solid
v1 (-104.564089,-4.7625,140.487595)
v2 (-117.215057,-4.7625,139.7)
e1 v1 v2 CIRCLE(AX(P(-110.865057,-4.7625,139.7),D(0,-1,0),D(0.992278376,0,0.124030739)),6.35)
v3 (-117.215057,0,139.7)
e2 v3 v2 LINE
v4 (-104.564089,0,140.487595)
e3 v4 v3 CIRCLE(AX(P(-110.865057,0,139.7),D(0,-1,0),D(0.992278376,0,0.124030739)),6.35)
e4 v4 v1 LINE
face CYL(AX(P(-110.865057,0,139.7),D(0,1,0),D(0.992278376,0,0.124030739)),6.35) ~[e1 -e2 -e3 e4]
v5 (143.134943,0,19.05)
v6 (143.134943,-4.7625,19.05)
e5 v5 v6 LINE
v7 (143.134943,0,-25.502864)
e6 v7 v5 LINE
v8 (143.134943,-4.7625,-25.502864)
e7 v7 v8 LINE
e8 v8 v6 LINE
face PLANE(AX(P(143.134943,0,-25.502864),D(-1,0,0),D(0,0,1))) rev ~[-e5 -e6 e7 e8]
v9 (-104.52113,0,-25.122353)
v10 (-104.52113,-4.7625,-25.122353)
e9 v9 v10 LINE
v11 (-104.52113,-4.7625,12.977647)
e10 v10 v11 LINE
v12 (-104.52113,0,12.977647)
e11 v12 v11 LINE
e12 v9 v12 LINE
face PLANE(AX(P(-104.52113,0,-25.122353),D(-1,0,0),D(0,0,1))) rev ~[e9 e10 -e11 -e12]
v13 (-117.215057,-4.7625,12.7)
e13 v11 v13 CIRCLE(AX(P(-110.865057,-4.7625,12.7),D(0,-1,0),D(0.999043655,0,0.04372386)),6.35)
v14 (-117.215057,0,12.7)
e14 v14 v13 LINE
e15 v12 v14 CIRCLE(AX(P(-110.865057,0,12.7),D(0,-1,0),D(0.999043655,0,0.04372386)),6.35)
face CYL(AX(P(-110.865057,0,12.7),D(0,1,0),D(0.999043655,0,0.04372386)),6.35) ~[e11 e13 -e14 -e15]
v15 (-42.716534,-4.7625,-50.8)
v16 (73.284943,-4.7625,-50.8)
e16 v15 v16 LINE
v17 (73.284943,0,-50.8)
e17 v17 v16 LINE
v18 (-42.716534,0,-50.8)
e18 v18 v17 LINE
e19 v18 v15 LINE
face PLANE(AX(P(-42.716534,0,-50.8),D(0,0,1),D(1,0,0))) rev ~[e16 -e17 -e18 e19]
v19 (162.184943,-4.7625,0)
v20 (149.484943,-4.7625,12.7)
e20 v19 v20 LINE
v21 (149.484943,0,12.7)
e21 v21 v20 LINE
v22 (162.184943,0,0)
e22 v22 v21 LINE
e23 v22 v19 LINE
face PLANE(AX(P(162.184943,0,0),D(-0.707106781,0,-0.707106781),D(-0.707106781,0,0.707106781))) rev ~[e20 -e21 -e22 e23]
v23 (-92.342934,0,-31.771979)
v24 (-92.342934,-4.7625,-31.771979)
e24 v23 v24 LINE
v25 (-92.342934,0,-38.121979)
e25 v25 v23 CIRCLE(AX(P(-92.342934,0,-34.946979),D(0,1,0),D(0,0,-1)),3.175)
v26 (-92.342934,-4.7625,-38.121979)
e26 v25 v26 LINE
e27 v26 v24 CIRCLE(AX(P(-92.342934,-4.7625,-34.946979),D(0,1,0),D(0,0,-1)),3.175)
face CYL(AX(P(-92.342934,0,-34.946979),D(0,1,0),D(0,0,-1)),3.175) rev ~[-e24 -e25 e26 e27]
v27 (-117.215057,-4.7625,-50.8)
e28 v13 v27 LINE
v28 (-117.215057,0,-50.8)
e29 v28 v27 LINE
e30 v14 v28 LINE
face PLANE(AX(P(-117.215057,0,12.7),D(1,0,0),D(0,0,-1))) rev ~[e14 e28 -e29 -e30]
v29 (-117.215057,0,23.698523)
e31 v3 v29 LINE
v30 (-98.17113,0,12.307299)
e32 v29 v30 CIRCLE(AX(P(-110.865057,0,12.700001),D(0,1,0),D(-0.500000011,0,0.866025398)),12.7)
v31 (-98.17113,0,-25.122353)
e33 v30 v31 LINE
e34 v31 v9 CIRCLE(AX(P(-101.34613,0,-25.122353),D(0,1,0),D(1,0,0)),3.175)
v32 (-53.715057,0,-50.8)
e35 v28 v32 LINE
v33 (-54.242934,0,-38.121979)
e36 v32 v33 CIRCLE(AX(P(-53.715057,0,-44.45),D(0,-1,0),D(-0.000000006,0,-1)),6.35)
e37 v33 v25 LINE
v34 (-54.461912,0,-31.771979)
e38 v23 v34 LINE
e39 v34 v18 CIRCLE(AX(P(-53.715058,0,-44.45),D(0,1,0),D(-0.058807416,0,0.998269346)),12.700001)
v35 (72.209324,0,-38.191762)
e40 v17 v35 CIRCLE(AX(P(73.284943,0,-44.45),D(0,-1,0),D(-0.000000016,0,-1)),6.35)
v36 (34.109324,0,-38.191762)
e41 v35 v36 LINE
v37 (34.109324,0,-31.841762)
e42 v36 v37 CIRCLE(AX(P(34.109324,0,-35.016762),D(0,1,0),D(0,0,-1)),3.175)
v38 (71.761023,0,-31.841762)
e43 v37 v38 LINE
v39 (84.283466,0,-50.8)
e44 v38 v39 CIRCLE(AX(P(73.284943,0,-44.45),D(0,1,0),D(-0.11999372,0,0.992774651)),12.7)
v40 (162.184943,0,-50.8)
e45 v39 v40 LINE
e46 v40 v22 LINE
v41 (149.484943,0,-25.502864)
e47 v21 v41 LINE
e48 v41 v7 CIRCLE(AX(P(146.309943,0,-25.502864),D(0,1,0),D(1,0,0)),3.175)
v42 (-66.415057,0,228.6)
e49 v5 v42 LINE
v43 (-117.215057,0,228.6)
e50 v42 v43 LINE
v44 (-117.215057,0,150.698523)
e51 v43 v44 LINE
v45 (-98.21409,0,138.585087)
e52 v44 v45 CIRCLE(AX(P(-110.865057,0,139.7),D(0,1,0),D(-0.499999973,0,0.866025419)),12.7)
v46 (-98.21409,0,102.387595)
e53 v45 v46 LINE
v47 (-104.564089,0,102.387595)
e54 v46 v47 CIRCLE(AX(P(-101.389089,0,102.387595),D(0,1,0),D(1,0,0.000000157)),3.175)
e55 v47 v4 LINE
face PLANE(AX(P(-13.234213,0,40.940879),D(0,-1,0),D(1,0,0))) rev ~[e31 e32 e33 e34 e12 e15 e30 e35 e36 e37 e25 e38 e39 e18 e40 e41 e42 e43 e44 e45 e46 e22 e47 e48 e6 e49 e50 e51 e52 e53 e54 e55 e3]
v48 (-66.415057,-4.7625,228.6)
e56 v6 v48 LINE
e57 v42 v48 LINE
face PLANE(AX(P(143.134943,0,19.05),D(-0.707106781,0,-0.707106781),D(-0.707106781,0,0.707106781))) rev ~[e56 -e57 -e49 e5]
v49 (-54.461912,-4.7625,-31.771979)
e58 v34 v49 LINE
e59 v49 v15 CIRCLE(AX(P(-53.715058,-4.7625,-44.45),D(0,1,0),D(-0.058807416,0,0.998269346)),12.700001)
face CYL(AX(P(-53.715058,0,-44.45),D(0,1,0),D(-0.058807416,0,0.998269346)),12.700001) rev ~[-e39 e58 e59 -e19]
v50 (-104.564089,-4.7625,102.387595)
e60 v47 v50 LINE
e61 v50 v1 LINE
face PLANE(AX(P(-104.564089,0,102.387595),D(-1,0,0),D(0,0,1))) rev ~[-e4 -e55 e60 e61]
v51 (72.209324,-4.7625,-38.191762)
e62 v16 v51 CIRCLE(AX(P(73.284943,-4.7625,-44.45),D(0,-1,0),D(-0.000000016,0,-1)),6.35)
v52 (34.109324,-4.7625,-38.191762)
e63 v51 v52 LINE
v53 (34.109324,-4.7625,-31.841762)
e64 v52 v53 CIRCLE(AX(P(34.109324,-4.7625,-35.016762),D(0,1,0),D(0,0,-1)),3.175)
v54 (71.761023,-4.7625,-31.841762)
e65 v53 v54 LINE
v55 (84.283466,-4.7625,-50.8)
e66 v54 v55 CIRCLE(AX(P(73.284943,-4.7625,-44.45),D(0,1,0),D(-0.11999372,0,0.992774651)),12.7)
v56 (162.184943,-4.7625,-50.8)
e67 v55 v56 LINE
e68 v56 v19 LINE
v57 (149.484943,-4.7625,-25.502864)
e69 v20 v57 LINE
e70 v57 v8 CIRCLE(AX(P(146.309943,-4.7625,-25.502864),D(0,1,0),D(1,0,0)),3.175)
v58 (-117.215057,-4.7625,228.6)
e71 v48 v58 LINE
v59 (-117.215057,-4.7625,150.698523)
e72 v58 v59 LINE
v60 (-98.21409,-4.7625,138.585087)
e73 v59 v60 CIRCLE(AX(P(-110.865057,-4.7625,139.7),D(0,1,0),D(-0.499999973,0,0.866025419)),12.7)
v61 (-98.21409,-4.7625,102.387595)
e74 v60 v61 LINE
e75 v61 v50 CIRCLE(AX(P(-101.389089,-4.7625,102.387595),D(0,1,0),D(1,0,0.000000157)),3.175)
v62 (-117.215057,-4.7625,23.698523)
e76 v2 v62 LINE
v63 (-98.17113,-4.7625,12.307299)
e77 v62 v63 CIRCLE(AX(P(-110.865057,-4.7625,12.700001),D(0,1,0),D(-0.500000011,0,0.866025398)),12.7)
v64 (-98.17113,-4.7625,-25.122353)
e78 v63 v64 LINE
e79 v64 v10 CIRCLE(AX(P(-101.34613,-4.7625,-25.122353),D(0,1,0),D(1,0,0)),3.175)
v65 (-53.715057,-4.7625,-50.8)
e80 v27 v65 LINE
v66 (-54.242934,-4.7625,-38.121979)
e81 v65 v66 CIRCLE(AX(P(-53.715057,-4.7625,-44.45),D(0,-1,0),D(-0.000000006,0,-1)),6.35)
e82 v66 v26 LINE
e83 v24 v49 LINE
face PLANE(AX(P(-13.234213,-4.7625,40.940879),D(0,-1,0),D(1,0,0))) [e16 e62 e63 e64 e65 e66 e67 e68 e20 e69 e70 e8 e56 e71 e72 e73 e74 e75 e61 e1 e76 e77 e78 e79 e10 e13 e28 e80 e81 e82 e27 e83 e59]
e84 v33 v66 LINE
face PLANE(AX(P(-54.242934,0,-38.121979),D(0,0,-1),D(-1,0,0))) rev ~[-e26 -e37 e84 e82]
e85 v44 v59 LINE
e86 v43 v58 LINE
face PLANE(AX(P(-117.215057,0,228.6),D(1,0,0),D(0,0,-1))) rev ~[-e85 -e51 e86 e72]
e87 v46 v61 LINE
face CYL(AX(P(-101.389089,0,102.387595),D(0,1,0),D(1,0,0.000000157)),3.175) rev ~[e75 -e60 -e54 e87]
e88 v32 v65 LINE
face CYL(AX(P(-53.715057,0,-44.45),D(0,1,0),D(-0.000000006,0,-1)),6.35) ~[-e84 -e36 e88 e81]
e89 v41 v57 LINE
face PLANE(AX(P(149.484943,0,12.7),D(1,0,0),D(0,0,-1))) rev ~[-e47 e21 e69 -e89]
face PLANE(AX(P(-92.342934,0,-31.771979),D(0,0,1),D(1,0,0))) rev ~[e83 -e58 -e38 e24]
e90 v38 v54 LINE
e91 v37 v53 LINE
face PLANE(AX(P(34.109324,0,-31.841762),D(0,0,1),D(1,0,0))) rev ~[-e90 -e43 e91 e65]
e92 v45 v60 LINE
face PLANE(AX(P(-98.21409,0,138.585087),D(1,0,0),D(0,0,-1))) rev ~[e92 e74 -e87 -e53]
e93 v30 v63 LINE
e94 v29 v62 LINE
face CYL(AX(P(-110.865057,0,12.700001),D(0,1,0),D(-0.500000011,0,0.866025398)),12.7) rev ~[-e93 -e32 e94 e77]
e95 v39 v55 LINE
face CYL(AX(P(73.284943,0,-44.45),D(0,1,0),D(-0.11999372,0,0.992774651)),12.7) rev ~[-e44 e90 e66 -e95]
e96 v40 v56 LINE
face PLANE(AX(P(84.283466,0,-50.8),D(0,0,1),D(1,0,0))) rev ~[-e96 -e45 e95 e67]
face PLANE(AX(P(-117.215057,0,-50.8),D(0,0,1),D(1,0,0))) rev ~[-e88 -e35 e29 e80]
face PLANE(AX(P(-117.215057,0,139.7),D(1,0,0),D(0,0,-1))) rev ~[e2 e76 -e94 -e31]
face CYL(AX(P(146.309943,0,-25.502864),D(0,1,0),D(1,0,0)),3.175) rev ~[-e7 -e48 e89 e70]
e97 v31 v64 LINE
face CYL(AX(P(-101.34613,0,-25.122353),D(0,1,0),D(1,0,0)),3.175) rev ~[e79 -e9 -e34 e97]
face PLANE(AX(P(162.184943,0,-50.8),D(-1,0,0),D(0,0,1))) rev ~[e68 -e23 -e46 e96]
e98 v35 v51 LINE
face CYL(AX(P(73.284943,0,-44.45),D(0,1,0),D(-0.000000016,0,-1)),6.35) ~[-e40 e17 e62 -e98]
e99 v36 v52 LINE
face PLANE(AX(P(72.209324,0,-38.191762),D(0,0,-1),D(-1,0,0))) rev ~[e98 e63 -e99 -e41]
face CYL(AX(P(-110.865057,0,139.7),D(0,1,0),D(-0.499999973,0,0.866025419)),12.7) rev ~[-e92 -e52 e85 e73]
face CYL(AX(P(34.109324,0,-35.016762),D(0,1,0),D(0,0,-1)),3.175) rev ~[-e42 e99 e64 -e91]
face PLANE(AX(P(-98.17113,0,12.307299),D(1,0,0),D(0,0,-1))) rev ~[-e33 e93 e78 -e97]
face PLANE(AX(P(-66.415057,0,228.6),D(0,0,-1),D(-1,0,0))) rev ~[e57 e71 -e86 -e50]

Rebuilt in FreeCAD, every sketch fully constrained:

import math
import FreeCAD as App
import Part
import Sketcher
from FreeCAD import Vector
Q = App.Units.Quantity

doc = App.newDocument("Part")
body = doc.addObject("PartDesign::Body", "Body")

sketch1 = doc.addObject("Sketcher::SketchObject", "Sketch")
body.addObject(sketch1)
sketch1.AttachmentSupport = (doc.XZ_Plane, [""])
sketch1.MapMode = "FlatFace"
sketch1.addGeometry([
    Part.LineSegment(Vector(-66.4, 228.6, 0), Vector(-117.2, 228.6, 0)),
    Part.LineSegment(Vector(-117.2, 228.6, 0), Vector(-117.2, 150.7, 0)),
    Part.ArcOfCircle(Part.Circle(Vector(-110.9, 139.7, 0), Vector(0, 0, 1), 12.7), math.radians(-5), math.radians(120)),
    Part.LineSegment(Vector(-98.2, 138.6, 0), Vector(-98.2, 102.4, 0)),
    Part.ArcOfCircle(Part.Circle(Vector(-101.4, 102.4, 0), Vector(0, 0, 1), 3.2), math.radians(180), math.radians(360)),
    Part.LineSegment(Vector(-104.6, 102.4, 0), Vector(-104.6, 140.5, 0)),
    Part.ArcOfCircle(Part.Circle(Vector(-110.9, 139.7, 0), Vector(0, 0, 1), 6.4), math.radians(7), math.radians(180)),
    Part.LineSegment(Vector(-117.2, 139.7, 0), Vector(-117.2, 23.7, 0)),
    Part.ArcOfCircle(Part.Circle(Vector(-110.9, 12.7, 0), Vector(0, 0, 1), 12.7), math.radians(-2), math.radians(120)),
    Part.LineSegment(Vector(-98.2, 12.3, 0), Vector(-98.2, -25.1, 0)),
    Part.ArcOfCircle(Part.Circle(Vector(-101.3, -25.1, 0), Vector(0, 0, 1), 3.2), math.radians(180), math.radians(360)),
    Part.LineSegment(Vector(-104.5, -25.1, 0), Vector(-104.5, 13, 0)),
    Part.ArcOfCircle(Part.Circle(Vector(-110.9, 12.7, 0), Vector(0, 0, 1), 6.3), math.radians(3), math.radians(180)),
    Part.LineSegment(Vector(-117.2, 12.7, 0), Vector(-117.2, -50.8, 0)),
    Part.LineSegment(Vector(-117.2, -50.8, 0), Vector(-53.7, -50.8, 0)),
    Part.ArcOfCircle(Part.Circle(Vector(-53.7, -44.4, 0), Vector(0, 0, 1), 6.4), math.radians(-90), math.radians(95)),
    Part.LineSegment(Vector(-54.2, -38.1, 0), Vector(-92.3, -38.1, 0)),
    Part.ArcOfCircle(Part.Circle(Vector(-92.3, -34.9, 0), Vector(0, 0, 1), 3.2), math.radians(90), math.radians(270)),
    Part.LineSegment(Vector(-92.3, -31.8, 0), Vector(-54.5, -31.8, 0)),
    Part.ArcOfCircle(Part.Circle(Vector(-53.7, -44.5, 0), Vector(0, 0, 1), 12.7), math.radians(-30), math.radians(93)),
    Part.LineSegment(Vector(-42.7, -50.8, 0), Vector(73.3, -50.8, 0)),
    Part.ArcOfCircle(Part.Circle(Vector(73.3, -44.5, 0), Vector(0, 0, 1), 6.3), math.radians(-90), math.radians(100)),
    Part.LineSegment(Vector(72.2, -38.2, 0), Vector(34.1, -38.2, 0)),
    Part.ArcOfCircle(Part.Circle(Vector(34.1, -35, 0), Vector(0, 0, 1), 3.2), math.radians(90), math.radians(270)),
    Part.LineSegment(Vector(34.1, -31.8, 0), Vector(71.8, -31.8, 0)),
    Part.ArcOfCircle(Part.Circle(Vector(73.3, -44.5, 0), Vector(0, 0, 1), 12.7), math.radians(-30), math.radians(97)),
    Part.LineSegment(Vector(84.3, -50.8, 0), Vector(162.2, -50.8, 0)),
    Part.LineSegment(Vector(162.2, -50.8, 0), Vector(162.2, 0, 0)),
    Part.LineSegment(Vector(162.2, 0, 0), Vector(149.5, 12.7, 0)),
    Part.LineSegment(Vector(149.5, 12.7, 0), Vector(149.5, -25.5, 0)),
    Part.ArcOfCircle(Part.Circle(Vector(146.3, -25.5, 0), Vector(0, 0, 1), 3.2), math.radians(180), math.radians(360)),
    Part.LineSegment(Vector(143.1, -25.5, 0), Vector(143.1, 19.1, 0)),
    Part.LineSegment(Vector(143.1, 19.1, 0), Vector(-66.4, 228.6, 0)),
], False)
sketch1.addConstraint([
    Sketcher.Constraint("Coincident", 0, 2, 1, 1),
    Sketcher.Constraint("Coincident", 1, 2, 2, 2),
    Sketcher.Constraint("Coincident", 2, 1, 3, 1),
    Sketcher.Constraint("Tangent", 3, 2, 4, 2),
    Sketcher.Constraint("Tangent", 4, 1, 5, 1),
    Sketcher.Constraint("Coincident", 5, 2, 6, 1),
    Sketcher.Constraint("Tangent", 6, 2, 7, 1),
    Sketcher.Constraint("Coincident", 7, 2, 8, 2),
    Sketcher.Constraint("Coincident", 8, 1, 9, 1),
    Sketcher.Constraint("Tangent", 9, 2, 10, 2),
    Sketcher.Constraint("Tangent", 10, 1, 11, 1),
    Sketcher.Constraint("Coincident", 11, 2, 12, 1),
    Sketcher.Constraint("Tangent", 12, 2, 13, 1),
    Sketcher.Constraint("Coincident", 13, 2, 14, 1),
    Sketcher.Constraint("Tangent", 14, 2, 15, 1),
    Sketcher.Constraint("Coincident", 15, 2, 16, 1),
    Sketcher.Constraint("Tangent", 16, 2, 17, 2),
    Sketcher.Constraint("Tangent", 17, 1, 18, 1),
    Sketcher.Constraint("Coincident", 18, 2, 19, 2),
    Sketcher.Constraint("Coincident", 19, 1, 20, 1),
    Sketcher.Constraint("Tangent", 20, 2, 21, 1),
    Sketcher.Constraint("Coincident", 21, 2, 22, 1),
    Sketcher.Constraint("Tangent", 22, 2, 23, 2),
    Sketcher.Constraint("Tangent", 23, 1, 24, 1),
    Sketcher.Constraint("Coincident", 24, 2, 25, 2),
    Sketcher.Constraint("Coincident", 25, 1, 26, 1),
    Sketcher.Constraint("Coincident", 26, 2, 27, 1),
    Sketcher.Constraint("Coincident", 27, 2, 28, 1),
    Sketcher.Constraint("Coincident", 28, 2, 29, 1),
    Sketcher.Constraint("Tangent", 29, 2, 30, 2),
    Sketcher.Constraint("Tangent", 30, 1, 31, 1),
    Sketcher.Constraint("Coincident", 31, 2, 32, 1),
    Sketcher.Constraint("Coincident", 32, 2, 0, 1),
    Sketcher.Constraint("Horizontal", 0),
    Sketcher.Constraint("Vertical", 1),
    Sketcher.Constraint("Vertical", 3),
    Sketcher.Constraint("Vertical", 5),
    Sketcher.Constraint("Vertical", 7),
    Sketcher.Constraint("Vertical", 9),
    Sketcher.Constraint("Vertical", 11),
    Sketcher.Constraint("Vertical", 13),
    Sketcher.Constraint("Horizontal", 14),
    Sketcher.Constraint("Horizontal", 16),
    Sketcher.Constraint("Horizontal", 18),
    Sketcher.Constraint("Horizontal", 20),
    Sketcher.Constraint("Horizontal", 22),
    Sketcher.Constraint("Horizontal", 24),
    Sketcher.Constraint("Horizontal", 26),
    Sketcher.Constraint("Vertical", 27),
    Sketcher.Constraint("Vertical", 29),
    Sketcher.Constraint("Vertical", 31),
    Sketcher.Constraint("Coincident", 6, 3, 2, 3),
    Sketcher.Constraint("Coincident", 12, 3, 8, 3),
    Sketcher.Constraint("Coincident", 19, 3, 15, 3),
    Sketcher.Constraint("Coincident", 25, 3, 21, 3),
    Sketcher.Constraint("Equal", 2, 8),
    Sketcher.Constraint("Equal", 4, 10),
    Sketcher.Constraint("Equal", 6, 12),
    Sketcher.Constraint("Equal", 12, 15),
    Sketcher.Constraint("Equal", 10, 17),
    Sketcher.Constraint("Equal", 8, 19),
    Sketcher.Constraint("Equal", 15, 21),
    Sketcher.Constraint("Equal", 17, 23),
    Sketcher.Constraint("Equal", 19, 25),
    Sketcher.Constraint("Equal", 23, 30),
    Sketcher.Constraint("PointOnObject", 27, 2, -1),
    Sketcher.Constraint("Parallel", 28, 32),
    Sketcher.Constraint("Horizontal", 19, 3, 21, 3),
    Sketcher.Constraint("Horizontal", 20, 2, 25, 1),
    Sketcher.Constraint("Horizontal", 12, 2, 28, 2),
    Sketcher.Constraint("Vertical", 6, 3, 8, 3),
    Sketcher.Constraint("Vertical", 1, 2, 6, 2),
    Sketcher.Constraint("Equal", 16, 22),
    Sketcher.Constraint("Equal", 26, 1),
    Sketcher.Constraint("Equal", 22, 5),
    Sketcher.Constraint("Equal", 20, 7),
    Sketcher.Constraint("Equal", 5, 11),
    Sketcher.Constraint("Equal", 14, 13),
    Sketcher.Constraint("Equal", 0, 27),
    Sketcher.Constraint("Radius", 2, Q("0.5 in")),
    Sketcher.Constraint("DistanceX", 0, 2, 0, 1, Q("2 in")),
    Sketcher.Constraint("Radius", 6, Q("0.25 in")),
    Sketcher.Constraint("DistanceX", 14, 1, 14, 2, Q("2.5 in")),
    Sketcher.Constraint("DistanceX", 16, 2, 16, 1, Q("1.5 in")),
    Sketcher.Constraint("DistanceY", -1, 1, 0, 2, Q("9 in")),
    Sketcher.Constraint("Angle", 28, Q("135 deg")),
    Sketcher.Constraint("Radius", 4, Q("0.125 in")),
    Sketcher.Constraint("DistanceY", 8, 3, 6, 3, Q("5 in")),
    Sketcher.Constraint("DistanceX", 24, 1, 24, 2, Q("37.651699 mm")),
    Sketcher.Constraint("DistanceY", 3, 2, 3, 1, Q("36.197492 mm")),
    Sketcher.Constraint("DistanceY", -1, 1, 8, 1, Q("12.307299 mm")),
    Sketcher.Constraint("DistanceY", 23, 3, 30, 3, Q("9.513898 mm")),
    Sketcher.Constraint("DistanceX", 15, 2, 19, 1, Q("11.5264 mm")),
    Sketcher.Constraint("DistanceX", 4, 3, -1, 1, Q("101.389089 mm")),
])
pad1 = doc.addObject("PartDesign::Pad", "Pad")
body.addObject(pad1)
pad1.Profile = sketch1
pad1.Length = Q("0.1875 in")

doc.recompute()
